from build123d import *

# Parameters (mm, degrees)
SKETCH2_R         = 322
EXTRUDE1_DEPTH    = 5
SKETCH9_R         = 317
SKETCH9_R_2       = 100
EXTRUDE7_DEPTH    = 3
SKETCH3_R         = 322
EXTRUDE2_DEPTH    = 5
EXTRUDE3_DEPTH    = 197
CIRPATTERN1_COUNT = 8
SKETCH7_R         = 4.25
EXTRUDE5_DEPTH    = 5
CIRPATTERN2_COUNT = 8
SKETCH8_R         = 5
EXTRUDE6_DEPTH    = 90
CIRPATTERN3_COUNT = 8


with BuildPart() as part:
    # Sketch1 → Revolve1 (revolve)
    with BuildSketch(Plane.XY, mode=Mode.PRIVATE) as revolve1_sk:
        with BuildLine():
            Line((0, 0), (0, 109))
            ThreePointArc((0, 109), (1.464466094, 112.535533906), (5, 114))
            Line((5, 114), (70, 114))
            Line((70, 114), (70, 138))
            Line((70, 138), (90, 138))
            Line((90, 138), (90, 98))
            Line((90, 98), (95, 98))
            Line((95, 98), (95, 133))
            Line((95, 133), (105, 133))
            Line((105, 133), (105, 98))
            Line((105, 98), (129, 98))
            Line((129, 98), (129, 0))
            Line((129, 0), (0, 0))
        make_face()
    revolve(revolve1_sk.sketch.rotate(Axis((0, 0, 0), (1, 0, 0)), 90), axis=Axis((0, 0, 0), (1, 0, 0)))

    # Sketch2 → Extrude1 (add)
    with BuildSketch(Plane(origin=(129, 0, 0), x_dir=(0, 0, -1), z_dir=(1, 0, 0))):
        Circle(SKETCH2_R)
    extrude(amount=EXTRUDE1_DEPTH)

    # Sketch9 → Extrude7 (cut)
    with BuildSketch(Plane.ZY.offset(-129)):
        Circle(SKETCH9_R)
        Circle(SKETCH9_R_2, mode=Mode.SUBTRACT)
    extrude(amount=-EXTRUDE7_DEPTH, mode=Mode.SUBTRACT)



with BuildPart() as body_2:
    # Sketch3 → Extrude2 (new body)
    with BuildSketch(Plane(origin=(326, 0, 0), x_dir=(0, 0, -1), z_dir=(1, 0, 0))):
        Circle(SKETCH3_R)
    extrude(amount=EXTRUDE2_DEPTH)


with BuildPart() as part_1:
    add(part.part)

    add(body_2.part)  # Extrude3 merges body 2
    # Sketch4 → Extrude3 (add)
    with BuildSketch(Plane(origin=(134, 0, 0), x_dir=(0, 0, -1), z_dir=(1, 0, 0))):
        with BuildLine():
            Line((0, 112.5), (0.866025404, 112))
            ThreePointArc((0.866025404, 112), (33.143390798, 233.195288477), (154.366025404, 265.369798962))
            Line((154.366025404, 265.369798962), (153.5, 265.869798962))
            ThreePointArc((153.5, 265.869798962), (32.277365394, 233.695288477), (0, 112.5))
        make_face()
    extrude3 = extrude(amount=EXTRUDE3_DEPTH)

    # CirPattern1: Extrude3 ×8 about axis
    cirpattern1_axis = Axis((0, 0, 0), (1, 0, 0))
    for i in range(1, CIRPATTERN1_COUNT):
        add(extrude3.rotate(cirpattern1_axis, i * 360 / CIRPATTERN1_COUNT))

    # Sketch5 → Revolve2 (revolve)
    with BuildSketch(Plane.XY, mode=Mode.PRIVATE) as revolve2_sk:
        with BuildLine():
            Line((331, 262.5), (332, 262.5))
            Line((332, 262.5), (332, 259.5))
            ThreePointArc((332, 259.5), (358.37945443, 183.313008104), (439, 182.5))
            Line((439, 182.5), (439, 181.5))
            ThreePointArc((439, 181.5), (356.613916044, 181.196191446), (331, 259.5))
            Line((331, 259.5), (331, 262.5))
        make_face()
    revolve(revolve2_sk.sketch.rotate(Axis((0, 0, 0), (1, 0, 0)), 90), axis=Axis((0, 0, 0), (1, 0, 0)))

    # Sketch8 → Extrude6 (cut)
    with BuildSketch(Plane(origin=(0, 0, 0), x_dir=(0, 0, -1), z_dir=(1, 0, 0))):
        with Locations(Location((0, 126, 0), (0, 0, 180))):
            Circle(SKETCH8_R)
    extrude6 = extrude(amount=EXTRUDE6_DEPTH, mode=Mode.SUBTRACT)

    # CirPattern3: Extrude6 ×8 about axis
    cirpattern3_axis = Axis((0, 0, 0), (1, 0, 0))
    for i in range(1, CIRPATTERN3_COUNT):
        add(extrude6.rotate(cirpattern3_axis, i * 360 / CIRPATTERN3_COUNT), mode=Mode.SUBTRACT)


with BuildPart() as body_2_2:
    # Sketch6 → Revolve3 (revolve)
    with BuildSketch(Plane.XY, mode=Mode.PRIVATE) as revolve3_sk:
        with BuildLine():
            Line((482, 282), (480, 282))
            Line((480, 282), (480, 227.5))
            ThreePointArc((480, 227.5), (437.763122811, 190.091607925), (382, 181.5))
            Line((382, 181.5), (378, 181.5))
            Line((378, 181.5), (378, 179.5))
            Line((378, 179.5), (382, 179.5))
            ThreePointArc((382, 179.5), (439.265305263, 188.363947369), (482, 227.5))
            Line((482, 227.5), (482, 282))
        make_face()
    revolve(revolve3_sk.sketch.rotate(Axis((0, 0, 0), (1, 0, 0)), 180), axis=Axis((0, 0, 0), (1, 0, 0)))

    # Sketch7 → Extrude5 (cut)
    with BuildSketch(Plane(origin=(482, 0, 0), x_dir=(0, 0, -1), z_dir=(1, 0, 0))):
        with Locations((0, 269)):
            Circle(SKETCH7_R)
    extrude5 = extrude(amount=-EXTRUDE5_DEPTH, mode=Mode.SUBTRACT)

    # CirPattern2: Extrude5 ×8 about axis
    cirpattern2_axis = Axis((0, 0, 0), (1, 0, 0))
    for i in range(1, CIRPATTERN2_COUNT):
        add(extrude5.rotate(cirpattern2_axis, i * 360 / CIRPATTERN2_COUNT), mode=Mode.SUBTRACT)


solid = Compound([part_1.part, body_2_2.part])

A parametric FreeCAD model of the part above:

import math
import FreeCAD as App
import Part
import Sketcher
from FreeCAD import Vector
Q = App.Units.Quantity

doc = App.newDocument("Part")
params = doc.addObject("Spreadsheet::Sheet", "Params")
for row, (alias, value) in enumerate([
    ("sketch1_radius", "5 mm"),
    ("sketch1_width", "129 mm"),
    ("sketch1_width2", "24 mm"),
    ("sketch1_width3", "10 mm"),
    ("sketch1_width4", "5 mm"),
    ("revolution_angle", "360 deg"),
    ("sketch2_diameter", "644 mm"),
    ("pad1_length", "5 mm"),
    ("sketch3_diameter", "634 mm"),
    ("sketch3_diameter2", "200 mm"),
    ("pocket1_length", "3 mm"),
    ("sketch4_diameter", "644 mm"),
    ("pad2_length", "5 mm"),
    ("sketch5_radius", "125 mm"),
    ("sketch5_length", "1 mm"),
    ("pad3_length", "197 mm"),
    ("sketch6_radius", "70 mm"),
    ("sketch6_width", "1 mm"),
    ("sketch6_height", "3 mm"),
    ("revolution2_angle", "360 deg"),
    ("sketch7_diameter", "10 mm"),
    ("pocket2_length", "90 mm"),
    ("sketch8_radius", "100 mm"),
    ("sketch8_width", "2 mm"),
    ("sketch8_width2", "4 mm"),
    ("sketch8_height", "54.5 mm"),
    ("revolution3_angle", "360 deg"),
    ("sketch9_diameter", "8.5 mm"),
    ("pocket3_length", "5 mm"),
], start=1):
    params.set(f"A{row}", alias)
    params.set(f"B{row}", "=" + value)
    params.setAlias(f"B{row}", alias)

body = doc.addObject("PartDesign::Body", "Body")

# Sketch on XY plane
sketch1 = body.newObject("Sketcher::SketchObject", "Sketch")
sketch1.AttachmentSupport = (doc.getObject("XY_Plane"), [""])
sketch1.MapMode = "FlatFace"
sketch1.addGeometry([
    Part.LineSegment(Vector(0, 109, 0), Vector(0, 0, 0)),  # 0
    Part.LineSegment(Vector(0, 0, 0), Vector(129, 0, 0)),  # 1
    Part.LineSegment(Vector(129, 0, 0), Vector(129, 98, 0)),  # 2
    Part.LineSegment(Vector(129, 98, 0), Vector(105, 98, 0)),  # 3
    Part.LineSegment(Vector(105, 98, 0), Vector(105, 133, 0)),  # 4
    Part.LineSegment(Vector(105, 133, 0), Vector(95, 133, 0)),  # 5
    Part.LineSegment(Vector(95, 133, 0), Vector(95, 98, 0)),  # 6
    Part.LineSegment(Vector(95, 98, 0), Vector(90, 98, 0)),  # 7
    Part.LineSegment(Vector(90, 98, 0), Vector(90, 138, 0)),  # 8
    Part.LineSegment(Vector(90, 138, 0), Vector(70, 138, 0)),  # 9
    Part.LineSegment(Vector(70, 138, 0), Vector(70, 114, 0)),  # 10
    Part.LineSegment(Vector(70, 114, 0), Vector(5, 114, 0)),  # 11
    Part.ArcOfCircle(Part.Circle(Vector(5, 109, 0), Vector(0, 0, 1), 5), math.radians(90), math.radians(180)),  # 12
], False)
sketch1.addConstraint([
    Sketcher.Constraint("Coincident", 0, 2, 1, 1),
    Sketcher.Constraint("Coincident", 1, 2, 2, 1),
    Sketcher.Constraint("Coincident", 2, 2, 3, 1),
    Sketcher.Constraint("Coincident", 3, 2, 4, 1),
    Sketcher.Constraint("Coincident", 4, 2, 5, 1),
    Sketcher.Constraint("Coincident", 5, 2, 6, 1),
    Sketcher.Constraint("Coincident", 6, 2, 7, 1),
    Sketcher.Constraint("Coincident", 7, 2, 8, 1),
    Sketcher.Constraint("Coincident", 8, 2, 9, 1),
    Sketcher.Constraint("Coincident", 9, 2, 10, 1),
    Sketcher.Constraint("Coincident", 10, 2, 11, 1),
    Sketcher.Constraint("Tangent", 11, 2, 12, 1),
    Sketcher.Constraint("Tangent", 12, 2, 0, 1),
    Sketcher.Constraint("Vertical", 0),
    Sketcher.Constraint("Horizontal", 1),
    Sketcher.Constraint("Vertical", 2),
    Sketcher.Constraint("Horizontal", 3),
    Sketcher.Constraint("Vertical", 4),
    Sketcher.Constraint("Horizontal", 5),
    Sketcher.Constraint("Vertical", 6),
    Sketcher.Constraint("Horizontal", 7),
    Sketcher.Constraint("Vertical", 8),
    Sketcher.Constraint("Horizontal", 9),
    Sketcher.Constraint("Vertical", 10),
    Sketcher.Constraint("Horizontal", 11),
    Sketcher.Constraint("Coincident", 0, 2, -1, 1),
    Sketcher.Constraint("Horizontal", 3, 2, 6, 2),
    Sketcher.Constraint("Equal", 3, 10),
    Sketcher.Constraint("Radius", 12, Q("5 mm")),
    Sketcher.Constraint("DistanceX", 1, 1, 1, 2, Q("129 mm")),
    Sketcher.Constraint("DistanceX", 3, 2, 3, 1, Q("24 mm")),
    Sketcher.Constraint("DistanceX", 5, 2, 5, 1, Q("10 mm")),
    Sketcher.Constraint("DistanceX", 7, 2, 7, 1, Q("5 mm")),
    Sketcher.Constraint("DistanceX", 9, 2, 9, 1, Q("20 mm")),
    Sketcher.Constraint("DistanceY", 0, 2, 0, 1, Q("109 mm")),
    Sketcher.Constraint("DistanceY", 2, 1, 2, 2, Q("98 mm")),
    Sketcher.Constraint("DistanceY", 4, 1, 4, 2, Q("35 mm")),
])
sketch1.setExpression("Constraints[28]", "Params.sketch1_radius")
sketch1.setExpression("Constraints[29]", "Params.sketch1_width")
sketch1.setExpression("Constraints[30]", "Params.sketch1_width2")
sketch1.setExpression("Constraints[31]", "Params.sketch1_width3")
sketch1.setExpression("Constraints[32]", "Params.sketch1_width4")
revolution = body.newObject("PartDesign::Revolution", "Revolution")
revolution.Profile = sketch1
revolution.ReferenceAxis = (sketch1, ["H_Axis"])
revolution.setExpression("Angle", "Params.revolution_angle")

# Sketch on YZ plane
sketch2 = body.newObject("Sketcher::SketchObject", "Sketch001")
sketch2.AttachmentSupport = (doc.getObject("YZ_Plane"), [""])
sketch2.MapMode = "FlatFace"
sketch2.AttachmentOffset = App.Placement(Vector(0, 0, 129), App.Rotation())
sketch2.addGeometry(Part.Circle(Vector(0, 0, 0), Vector(0, 0, 1), 322), False)
sketch2.addConstraint([
    Sketcher.Constraint("Coincident", 0, 3, -1, 1),
    Sketcher.Constraint("Diameter", 0, Q("644 mm")),
])
sketch2.setExpression("Constraints[1]", "Params.sketch2_diameter")
pad1 = body.newObject("PartDesign::Pad", "Pad")
pad1.Profile = sketch2
pad1.setExpression("Length", "Params.pad1_length")

# Sketch on YZ plane
sketch3 = body.newObject("Sketcher::SketchObject", "Sketch002")
sketch3.AttachmentSupport = (doc.getObject("YZ_Plane"), [""])
sketch3.MapMode = "FlatFace"
sketch3.AttachmentOffset = App.Placement(Vector(0, 0, 129), App.Rotation())
sketch3.addGeometry([
    Part.Circle(Vector(0, 0, 0), Vector(0, 0, 1), 317),
    Part.Circle(Vector(0, 0, 0), Vector(0, 0, 1), 100),
], False)
sketch3.addConstraint([
    Sketcher.Constraint("Coincident", 0, 3, -1, 1),
    Sketcher.Constraint("Coincident", 1, 3, -1, 1),
    Sketcher.Constraint("Diameter", 0, Q("634 mm")),
    Sketcher.Constraint("Diameter", 1, Q("200 mm")),
])
sketch3.setExpression("Constraints[2]", "Params.sketch3_diameter")
sketch3.setExpression("Constraints[3]", "Params.sketch3_diameter2")
pocket1 = body.newObject("PartDesign::Pocket", "Pocket")
pocket1.Profile = sketch3
pocket1.setExpression("Length", "Params.pocket1_length")
pocket1.Reversed = True
body2 = doc.addObject("PartDesign::Body", "Body001")

# Sketch on YZ plane
sketch4 = body2.newObject("Sketcher::SketchObject", "Sketch003")
sketch4.AttachmentSupport = (doc.getObject("YZ_Plane001"), [""])
sketch4.MapMode = "FlatFace"
sketch4.AttachmentOffset = App.Placement(Vector(0, 0, 326), App.Rotation())
sketch4.addGeometry(Part.Circle(Vector(0, 0, 0), Vector(0, 0, 1), 322), False)
sketch4.addConstraint([
    Sketcher.Constraint("Coincident", 0, 3, -1, 1),
    Sketcher.Constraint("Diameter", 0, Q("644 mm")),
])
sketch4.setExpression("Constraints[1]", "Params.sketch4_diameter")
pad2 = body2.newObject("PartDesign::Pad", "Pad001")
pad2.Profile = sketch4
pad2.setExpression("Length", "Params.pad2_length")
body.AllowCompound = True
doc.recompute()

boolean = body.newObject("PartDesign::Boolean", "Boolean")
boolean.Type = "Fuse"
boolean.addObjects([body2])

# Sketch on YZ plane
sketch5 = body.newObject("Sketcher::SketchObject", "Sketch004")
sketch5.AttachmentSupport = (doc.getObject("YZ_Plane"), [""])
sketch5.MapMode = "FlatFace"
sketch5.AttachmentOffset = App.Placement(Vector(0, 0, 134), App.Rotation())
sketch5.addGeometry([
    Part.LineSegment(Vector(112.5, 0, 0), Vector(112, -0.866025, 0)),
    Part.ArcOfCircle(Part.Circle(Vector(144.769447, -121.494228, 0), Vector(0, 0, 1), 125), math.radians(-15.246625), math.radians(105.198005)),
    Part.LineSegment(Vector(265.369799, -154.366025, 0), Vector(265.869799, -153.5, 0)),
    Part.ArcOfCircle(Part.Circle(Vector(145.269447, -120.628203, 0), Vector(0, 0, 1), 125), math.radians(-15.246625), math.radians(105.198005)),
], False)
sketch5.addConstraint([
    Sketcher.Constraint("Coincident", 0, 2, 1, 2),
    Sketcher.Constraint("Coincident", 1, 1, 2, 1),
    Sketcher.Constraint("Coincident", 2, 2, 3, 1),
    Sketcher.Constraint("Coincident", 3, 2, 0, 1),
    Sketcher.Constraint("Equal", 1, 3),
    Sketcher.Constraint("PointOnObject", 3, 2, -1),
    Sketcher.Constraint("Parallel", 0, 2),
    Sketcher.Constraint("Equal", 0, 2),
    Sketcher.Constraint("Radius", 1, Q("125 mm")),
    Sketcher.Constraint("Angle", 0, Q("-120 deg")),
    Sketcher.Constraint("Distance", 0, Q("1 mm")),
    Sketcher.Constraint("DistanceX", -1, 1, 0, 2, Q("112 mm")),
    Sketcher.Constraint("DistanceY", 2, 2, -1, 1, Q("153.5 mm")),
    Sketcher.Constraint("DistanceX", -1, 1, 1, 1, Q("265.369799 mm")),
])
sketch5.setExpression("Constraints[8]", "Params.sketch5_radius")
sketch5.setExpression("Constraints[10]", "Params.sketch5_length")
pad3 = body.newObject("PartDesign::Pad", "Pad002")
pad3.Profile = sketch5
pad3.setExpression("Length", "Params.pad3_length")
doc.recompute()

polarpattern = body.newObject("PartDesign::PolarPattern", "PolarPattern")
polarpattern.Originals = [pad3]
polarpattern.Axis = (doc.getObject("X_Axis"), [""])
polarpattern.Angle = 360
polarpattern.Occurrences = 8
body.Tip = polarpattern

# Sketch on XY plane
sketch6 = body.newObject("Sketcher::SketchObject", "Sketch005")
sketch6.AttachmentSupport = (doc.getObject("XY_Plane"), [""])
sketch6.MapMode = "FlatFace"
sketch6.addGeometry([
    Part.LineSegment(Vector(332, 262.5, 0), Vector(331, 262.5, 0)),  # 0
    Part.LineSegment(Vector(331, 262.5, 0), Vector(331, 259.5, 0)),  # 1
    Part.ArcOfCircle(Part.Circle(Vector(397.598255, 237.943737, 0), Vector(0, 0, 1), 70), math.radians(162.064473), math.radians(306.260221)),  # 2
    Part.LineSegment(Vector(439, 181.5, 0), Vector(439, 182.5, 0)),  # 3
    Part.ArcOfCircle(Part.Circle(Vector(399.266795, 240.130482, 0), Vector(0, 0, 1), 70), math.radians(163.93621), math.radians(304.584233)),  # 4
    Part.LineSegment(Vector(332, 259.5, 0), Vector(332, 262.5, 0)),  # 5
], False)
sketch6.addConstraint([
    Sketcher.Constraint("Coincident", 0, 2, 1, 1),
    Sketcher.Constraint("Coincident", 1, 2, 2, 1),
    Sketcher.Constraint("Coincident", 2, 2, 3, 1),
    Sketcher.Constraint("Coincident", 3, 2, 4, 2),
    Sketcher.Constraint("Coincident", 4, 1, 5, 1),
    Sketcher.Constraint("Coincident", 5, 2, 0, 1),
    Sketcher.Constraint("Horizontal", 0),
    Sketcher.Constraint("Vertical", 1),
    Sketcher.Constraint("Vertical", 3),
    Sketcher.Constraint("Vertical", 5),
    Sketcher.Constraint("Equal", 2, 4),
    Sketcher.Constraint("Horizontal", 1, 2, 4, 1),
    Sketcher.Constraint("Equal", 0, 3),
    Sketcher.Constraint("Radius", 2, Q("70 mm")),
    Sketcher.Constraint("DistanceX", 0, 2, 0, 1, Q("1 mm")),
    Sketcher.Constraint("DistanceY", 1, 2, 1, 1, Q("3 mm")),
    Sketcher.Constraint("DistanceX", -1, 1, 0, 2, Q("331 mm")),
    Sketcher.Constraint("DistanceX", -1, 1, 2, 2, Q("439 mm")),
    Sketcher.Constraint("DistanceY", 2, 2, 1, 2, Q("78 mm")),
    Sketcher.Constraint("DistanceY", -1, 1, 0, 2, Q("262.5 mm")),
])
sketch6.setExpression("Constraints[13]", "Params.sketch6_radius")
sketch6.setExpression("Constraints[14]", "Params.sketch6_width")
sketch6.setExpression("Constraints[15]", "Params.sketch6_height")
revolution2 = body.newObject("PartDesign::Revolution", "Revolution001")
revolution2.Profile = sketch6
revolution2.ReferenceAxis = (sketch6, ["H_Axis"])
revolution2.setExpression("Angle", "Params.revolution2_angle")

# Sketch on YZ plane
sketch7 = body.newObject("Sketcher::SketchObject", "Sketch006")
sketch7.AttachmentSupport = (doc.getObject("YZ_Plane"), [""])
sketch7.MapMode = "FlatFace"
sketch7.addGeometry(Part.Circle(Vector(126, 0, 0), Vector(0, 0, 1), 5), False)
sketch7.addConstraint([
    Sketcher.Constraint("PointOnObject", 0, 3, -1),
    Sketcher.Constraint("Diameter", 0, Q("10 mm")),
    Sketcher.Constraint("DistanceX", -1, 1, 0, 3, Q("126 mm")),
])
sketch7.setExpression("Constraints[1]", "Params.sketch7_diameter")
pocket2 = body.newObject("PartDesign::Pocket", "Pocket001")
pocket2.Profile = sketch7
pocket2.setExpression("Length", "Params.pocket2_length")
pocket2.Reversed = True
doc.recompute()

polarpattern2 = body.newObject("PartDesign::PolarPattern", "PolarPattern001")
polarpattern2.Originals = [pocket2]
polarpattern2.Axis = (doc.getObject("X_Axis"), [""])
polarpattern2.Angle = 360
polarpattern2.Occurrences = 8
body.Tip = polarpattern2
body3 = doc.addObject("PartDesign::Body", "Body002")

# Sketch on XY plane
sketch8 = body3.newObject("Sketcher::SketchObject", "Sketch007")
sketch8.AttachmentSupport = (doc.getObject("XY_Plane002"), [""])
sketch8.MapMode = "FlatFace"
sketch8.addGeometry([
    Part.LineSegment(Vector(482, 282, 0), Vector(480, 282, 0)),  # 0
    Part.LineSegment(Vector(480, 282, 0), Vector(480, 227.5, 0)),  # 1
    Part.ArcOfCircle(Part.Circle(Vector(395.272409, 280.615302, 0), Vector(0, 0, 1), 100), math.radians(-97.627036), math.radians(-32.083393)),  # 2
    Part.LineSegment(Vector(382, 181.5, 0), Vector(378, 181.5, 0)),  # 3
    Part.LineSegment(Vector(378, 181.5, 0), Vector(378, 179.5, 0)),  # 4
    Part.LineSegment(Vector(378, 179.5, 0), Vector(382, 179.5, 0)),  # 5
    Part.ArcOfCircle(Part.Circle(Vector(395.992199, 278.516253, 0), Vector(0, 0, 1), 100), math.radians(-98.043332), math.radians(-30.674656)),  # 6
    Part.LineSegment(Vector(482, 227.5, 0), Vector(482, 282, 0)),  # 7
], False)
sketch8.addConstraint([
    Sketcher.Constraint("Coincident", 0, 2, 1, 1),
    Sketcher.Constraint("Coincident", 1, 2, 2, 2),
    Sketcher.Constraint("Coincident", 2, 1, 3, 1),
    Sketcher.Constraint("Coincident", 3, 2, 4, 1),
    Sketcher.Constraint("Coincident", 4, 2, 5, 1),
    Sketcher.Constraint("Coincident", 5, 2, 6, 1),
    Sketcher.Constraint("Coincident", 6, 2, 7, 1),
    Sketcher.Constraint("Coincident", 7, 2, 0, 1),
    Sketcher.Constraint("Horizontal", 0),
    Sketcher.Constraint("Vertical", 1),
    Sketcher.Constraint("Horizontal", 3),
    Sketcher.Constraint("Vertical", 4),
    Sketcher.Constraint("Horizontal", 5),
    Sketcher.Constraint("Vertical", 7),
    Sketcher.Constraint("Equal", 2, 6),
    Sketcher.Constraint("Horizontal", 1, 2, 6, 2),
    Sketcher.Constraint("Vertical", 2, 1, 5, 2),
    Sketcher.Constraint("Equal", 0, 4),
    Sketcher.Constraint("Radius", 2, Q("100 mm")),
    Sketcher.Constraint("DistanceX", 0, 2, 0, 1, Q("2 mm")),
    Sketcher.Constraint("DistanceX", 3, 2, 3, 1, Q("4 mm")),
    Sketcher.Constraint("DistanceY", 1, 2, 1, 1, Q("54.5 mm")),
    Sketcher.Constraint("DistanceX", -1, 1, 0, 2, Q("480 mm")),
    Sketcher.Constraint("DistanceY", -1, 1, 0, 2, Q("282 mm")),
    Sketcher.Constraint("DistanceX", -1, 1, 2, 1, Q("382 mm")),
    Sketcher.Constraint("DistanceY", 2, 1, 1, 2, Q("46 mm")),
])
sketch8.setExpression("Constraints[18]", "Params.sketch8_radius")
sketch8.setExpression("Constraints[19]", "Params.sketch8_width")
sketch8.setExpression("Constraints[20]", "Params.sketch8_width2")
sketch8.setExpression("Constraints[21]", "Params.sketch8_height")
revolution3 = body3.newObject("PartDesign::Revolution", "Revolution002")
revolution3.Profile = sketch8
revolution3.ReferenceAxis = (sketch8, ["H_Axis"])
revolution3.setExpression("Angle", "Params.revolution3_angle")

# Sketch on YZ plane
sketch9 = body3.newObject("Sketcher::SketchObject", "Sketch008")
sketch9.AttachmentSupport = (doc.getObject("YZ_Plane002"), [""])
sketch9.MapMode = "FlatFace"
sketch9.AttachmentOffset = App.Placement(Vector(0, 0, 482), App.Rotation())
sketch9.addGeometry(Part.Circle(Vector(269, 0, 0), Vector(0, 0, 1), 4.25), False)
sketch9.addConstraint([
    Sketcher.Constraint("PointOnObject", 0, 3, -1),
    Sketcher.Constraint("Diameter", 0, Q("8.5 mm")),
    Sketcher.Constraint("DistanceX", -1, 1, 0, 3, Q("269 mm")),
])
sketch9.setExpression("Constraints[1]", "Params.sketch9_diameter")
pocket3 = body3.newObject("PartDesign::Pocket", "Pocket002")
pocket3.Profile = sketch9
pocket3.setExpression("Length", "Params.pocket3_length")
doc.recompute()

polarpattern3 = body3.newObject("PartDesign::PolarPattern", "PolarPattern002")
polarpattern3.Originals = [pocket3]
polarpattern3.Axis = (doc.getObject("X_Axis002"), [""])
polarpattern3.Angle = 360
polarpattern3.Occurrences = 8
body3.Tip = polarpattern3

doc.recompute()
